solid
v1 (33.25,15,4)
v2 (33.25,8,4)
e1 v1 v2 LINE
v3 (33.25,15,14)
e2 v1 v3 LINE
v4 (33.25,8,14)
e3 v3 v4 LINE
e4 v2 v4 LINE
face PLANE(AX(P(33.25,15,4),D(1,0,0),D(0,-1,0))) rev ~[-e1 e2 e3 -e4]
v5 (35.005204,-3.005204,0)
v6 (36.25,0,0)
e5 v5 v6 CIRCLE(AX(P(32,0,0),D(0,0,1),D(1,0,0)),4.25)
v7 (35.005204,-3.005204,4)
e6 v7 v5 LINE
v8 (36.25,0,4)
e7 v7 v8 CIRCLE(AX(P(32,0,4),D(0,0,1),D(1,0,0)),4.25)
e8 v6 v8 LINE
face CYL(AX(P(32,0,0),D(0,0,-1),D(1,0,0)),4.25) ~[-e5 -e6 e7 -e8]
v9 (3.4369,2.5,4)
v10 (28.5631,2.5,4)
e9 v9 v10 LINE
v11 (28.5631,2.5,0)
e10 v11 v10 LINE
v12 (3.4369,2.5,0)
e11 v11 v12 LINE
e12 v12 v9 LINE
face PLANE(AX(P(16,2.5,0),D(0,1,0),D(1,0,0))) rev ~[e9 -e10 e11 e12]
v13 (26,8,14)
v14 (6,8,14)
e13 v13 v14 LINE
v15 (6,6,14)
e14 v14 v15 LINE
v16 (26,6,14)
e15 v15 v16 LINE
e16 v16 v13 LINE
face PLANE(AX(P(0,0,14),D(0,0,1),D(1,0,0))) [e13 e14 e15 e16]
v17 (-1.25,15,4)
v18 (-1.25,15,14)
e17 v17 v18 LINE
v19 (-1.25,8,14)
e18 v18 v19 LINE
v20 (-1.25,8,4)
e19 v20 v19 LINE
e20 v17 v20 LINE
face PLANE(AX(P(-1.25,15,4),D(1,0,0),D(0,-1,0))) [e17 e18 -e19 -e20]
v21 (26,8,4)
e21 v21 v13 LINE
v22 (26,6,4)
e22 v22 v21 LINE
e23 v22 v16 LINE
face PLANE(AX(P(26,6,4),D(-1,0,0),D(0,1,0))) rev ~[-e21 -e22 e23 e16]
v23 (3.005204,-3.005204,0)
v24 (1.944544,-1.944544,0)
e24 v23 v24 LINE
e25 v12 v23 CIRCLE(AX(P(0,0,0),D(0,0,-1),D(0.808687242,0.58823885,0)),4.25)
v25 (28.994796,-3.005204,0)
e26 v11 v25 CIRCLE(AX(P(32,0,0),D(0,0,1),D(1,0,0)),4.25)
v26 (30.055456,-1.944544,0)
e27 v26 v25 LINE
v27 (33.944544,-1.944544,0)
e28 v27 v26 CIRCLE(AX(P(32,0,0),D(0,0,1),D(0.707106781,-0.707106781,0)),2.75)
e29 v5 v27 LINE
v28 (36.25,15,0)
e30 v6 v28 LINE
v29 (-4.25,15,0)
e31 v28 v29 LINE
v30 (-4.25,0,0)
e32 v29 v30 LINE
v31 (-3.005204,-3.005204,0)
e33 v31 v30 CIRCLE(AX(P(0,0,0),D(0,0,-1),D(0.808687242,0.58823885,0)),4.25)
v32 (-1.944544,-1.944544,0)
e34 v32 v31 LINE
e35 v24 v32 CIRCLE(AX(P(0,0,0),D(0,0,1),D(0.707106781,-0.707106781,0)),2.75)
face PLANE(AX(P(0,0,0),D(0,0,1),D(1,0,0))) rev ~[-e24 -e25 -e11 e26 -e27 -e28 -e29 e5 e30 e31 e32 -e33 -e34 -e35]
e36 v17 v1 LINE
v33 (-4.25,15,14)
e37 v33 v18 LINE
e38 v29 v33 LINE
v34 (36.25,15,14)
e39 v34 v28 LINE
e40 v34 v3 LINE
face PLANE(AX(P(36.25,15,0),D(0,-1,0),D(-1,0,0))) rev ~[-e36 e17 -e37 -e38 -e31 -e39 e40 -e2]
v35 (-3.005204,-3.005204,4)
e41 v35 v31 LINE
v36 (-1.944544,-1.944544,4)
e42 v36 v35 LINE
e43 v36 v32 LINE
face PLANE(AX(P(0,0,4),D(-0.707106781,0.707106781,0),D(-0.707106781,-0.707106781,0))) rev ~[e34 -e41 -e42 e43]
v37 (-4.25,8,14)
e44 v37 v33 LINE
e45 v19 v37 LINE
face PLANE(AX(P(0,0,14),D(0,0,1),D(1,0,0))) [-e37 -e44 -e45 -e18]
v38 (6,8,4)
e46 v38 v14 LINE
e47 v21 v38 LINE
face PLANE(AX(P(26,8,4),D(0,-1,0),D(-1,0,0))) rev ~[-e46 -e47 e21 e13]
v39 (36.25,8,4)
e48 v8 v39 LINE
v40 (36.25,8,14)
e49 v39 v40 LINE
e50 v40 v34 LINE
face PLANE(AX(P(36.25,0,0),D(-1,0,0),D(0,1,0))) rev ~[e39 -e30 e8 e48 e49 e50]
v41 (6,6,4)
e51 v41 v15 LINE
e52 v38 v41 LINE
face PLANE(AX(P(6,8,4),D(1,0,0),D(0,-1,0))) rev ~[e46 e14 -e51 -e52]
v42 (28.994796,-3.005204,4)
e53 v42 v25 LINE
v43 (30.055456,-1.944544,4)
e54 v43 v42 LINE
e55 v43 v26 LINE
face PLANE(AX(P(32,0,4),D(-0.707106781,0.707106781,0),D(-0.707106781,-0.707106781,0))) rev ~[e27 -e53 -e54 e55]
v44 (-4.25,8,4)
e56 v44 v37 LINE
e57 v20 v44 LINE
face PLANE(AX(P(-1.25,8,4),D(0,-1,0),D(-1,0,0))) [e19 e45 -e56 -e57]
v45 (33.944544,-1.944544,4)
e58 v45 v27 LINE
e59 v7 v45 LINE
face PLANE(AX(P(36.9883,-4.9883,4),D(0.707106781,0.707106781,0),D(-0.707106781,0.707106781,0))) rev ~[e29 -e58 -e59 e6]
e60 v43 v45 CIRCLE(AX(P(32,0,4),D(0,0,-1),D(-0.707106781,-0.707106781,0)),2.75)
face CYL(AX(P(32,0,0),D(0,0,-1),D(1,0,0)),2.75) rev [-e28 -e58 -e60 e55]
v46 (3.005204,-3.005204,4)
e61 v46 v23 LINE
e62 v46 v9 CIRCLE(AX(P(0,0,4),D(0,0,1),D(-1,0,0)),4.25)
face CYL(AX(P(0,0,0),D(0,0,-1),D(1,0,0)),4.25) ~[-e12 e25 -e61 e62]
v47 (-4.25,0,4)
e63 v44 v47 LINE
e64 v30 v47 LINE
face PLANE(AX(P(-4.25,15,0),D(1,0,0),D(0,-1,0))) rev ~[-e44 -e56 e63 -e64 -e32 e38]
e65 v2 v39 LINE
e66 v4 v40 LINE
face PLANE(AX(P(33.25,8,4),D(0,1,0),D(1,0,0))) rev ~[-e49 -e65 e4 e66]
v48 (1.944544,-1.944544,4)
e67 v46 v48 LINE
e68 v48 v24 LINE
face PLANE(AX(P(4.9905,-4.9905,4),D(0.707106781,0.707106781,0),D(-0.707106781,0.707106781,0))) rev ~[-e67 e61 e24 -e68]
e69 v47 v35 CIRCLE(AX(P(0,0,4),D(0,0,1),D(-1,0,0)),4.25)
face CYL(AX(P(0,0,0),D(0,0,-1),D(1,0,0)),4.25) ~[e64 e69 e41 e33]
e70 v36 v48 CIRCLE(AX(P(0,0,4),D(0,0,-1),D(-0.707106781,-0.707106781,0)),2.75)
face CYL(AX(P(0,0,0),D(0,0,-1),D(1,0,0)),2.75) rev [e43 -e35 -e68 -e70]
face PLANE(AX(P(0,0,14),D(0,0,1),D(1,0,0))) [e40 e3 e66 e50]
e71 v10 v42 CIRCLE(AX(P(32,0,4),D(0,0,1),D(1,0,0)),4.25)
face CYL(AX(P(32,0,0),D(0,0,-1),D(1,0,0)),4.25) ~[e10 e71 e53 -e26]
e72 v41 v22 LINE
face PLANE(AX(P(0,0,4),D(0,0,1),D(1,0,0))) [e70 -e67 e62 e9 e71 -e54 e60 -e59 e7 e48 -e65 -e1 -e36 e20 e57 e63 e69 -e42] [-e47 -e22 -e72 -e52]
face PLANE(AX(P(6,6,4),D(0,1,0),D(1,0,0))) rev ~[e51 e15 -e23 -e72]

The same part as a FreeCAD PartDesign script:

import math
import FreeCAD as App
import Part
import Sketcher
Q = App.Units.Quantity


def add_polygon(sketch, points):
    """Adds a closed chain of lines whose ends are joined by coincident constraints."""
    first, n = sketch.GeometryCount, len(points)
    for a, b in zip(points, points[1:] + points[:1]):
        sketch.addGeometry(Part.LineSegment(App.Vector(*a, 0), App.Vector(*b, 0)), False)
    for i in range(n):
        sketch.addConstraint(Sketcher.Constraint("Coincident", first + i, 2, first + (i + 1) % n, 1))

doc = App.newDocument("Part")
body = doc.addObject("PartDesign::Body", "Body")

# Sketch on XY plane
sketch1 = body.newObject("Sketcher::SketchObject", "Sketch")
sketch1.AttachmentSupport = (doc.getObject("XY_Plane"), [""])
sketch1.MapMode = "FlatFace"
sketch1.addGeometry([
    Part.LineSegment(App.Vector(36.2, 15, 0), App.Vector(-4.2, 15, 0)),  # 0
    Part.LineSegment(App.Vector(-4.2, 15, 0), App.Vector(-4.2, 0, 0)),  # 1
    Part.ArcOfCircle(Part.Circle(App.Vector(0, 0, 0), App.Vector(0, 0, 1), 4.2), math.radians(180), math.radians(396)),  # 2
    Part.LineSegment(App.Vector(3.4, 2.5, 0), App.Vector(28.6, 2.5, 0)),  # 3
    Part.ArcOfCircle(Part.Circle(App.Vector(32, 0, 0), App.Vector(0, 0, 1), 4.2), math.radians(144), math.radians(360)),  # 4
    Part.LineSegment(App.Vector(36.2, 0, 0), App.Vector(36.2, 15, 0)),  # 5
    Part.Circle(App.Vector(32, 0, 0), App.Vector(0, 0, 1), 2.8),  # 6
    Part.Circle(App.Vector(0, 0, 0), App.Vector(0, 0, 1), 2.8),  # 7
], False)
sketch1.addConstraint([
    Sketcher.Constraint("Coincident", 0, 2, 1, 1),
    Sketcher.Constraint("Tangent", 1, 2, 2, 1),
    Sketcher.Constraint("Coincident", 2, 2, 3, 1),
    Sketcher.Constraint("Coincident", 3, 2, 4, 1),
    Sketcher.Constraint("Tangent", 4, 2, 5, 1),
    Sketcher.Constraint("Coincident", 5, 2, 0, 1),
    Sketcher.Constraint("Horizontal", 0),
    Sketcher.Constraint("Vertical", 1),
    Sketcher.Constraint("Horizontal", 3),
    Sketcher.Constraint("Vertical", 5),
    Sketcher.Constraint("Coincident", 2, 3, -1, 1),
    Sketcher.Constraint("Coincident", 7, 3, -1, 1),
    Sketcher.Constraint("Coincident", 6, 3, 4, 3),
    Sketcher.Constraint("Equal", 2, 4),
    Sketcher.Constraint("Equal", 6, 7),
    Sketcher.Constraint("PointOnObject", 4, 3, -1),
    Sketcher.Constraint("Diameter", 6, Q("5.5 mm")),
    Sketcher.Constraint("DistanceY", 1, 2, 1, 1, Q("15 mm")),
    Sketcher.Constraint("DistanceX", -1, 1, 4, 3, Q("32 mm")),
    Sketcher.Constraint("DistanceY", -1, 1, 2, 2, Q("2.5 mm")),
    Sketcher.Constraint("Radius", 2, Q("4.25 mm")),
])
pad1 = body.newObject("PartDesign::Pad", "Pad")
pad1.Profile = sketch1
pad1.Length = 4

# Sketch on XY plane
sketch2 = body.newObject("Sketcher::SketchObject", "Sketch001")
sketch2.AttachmentSupport = (doc.getObject("XY_Plane"), [""])
sketch2.MapMode = "FlatFace"
sketch2.AttachmentOffset = App.Placement(App.Vector(0, 0, 4), App.Rotation())
add_polygon(sketch2, [(5, -5), (0, 0), (-4, -4), (1, -9)])  # lines 0-3
add_polygon(sketch2, [(37, -5), (32, 0), (27, -5), (32, -10)])  # lines 4-7
sketch2.addConstraint([
    Sketcher.Constraint("Coincident", 0, 2, -1, 1),
    Sketcher.Constraint("PointOnObject", 4, 2, -1),
    Sketcher.Constraint("Perpendicular", 0, 1),
    Sketcher.Constraint("Perpendicular", 1, 2),
    Sketcher.Constraint("Perpendicular", 2, 3),
    Sketcher.Constraint("Perpendicular", 3, 4),
    Sketcher.Constraint("Perpendicular", 4, 5),
    Sketcher.Constraint("Perpendicular", 5, 6),
    Sketcher.Constraint("Perpendicular", 6, 7),
    Sketcher.Constraint("Angle", 2, Q("-44.9994 deg")),
    Sketcher.Constraint("DistanceX", -1, 1, 4, 2, Q("32 mm")),
    Sketcher.Constraint("DistanceX", -1, 1, 2, 2, Q("0.938 mm")),
    Sketcher.Constraint("DistanceY", 2, 2, -1, 1, Q("9.043 mm")),
    Sketcher.Constraint("DistanceX", -1, 1, 6, 2, Q("32.273 mm")),
    Sketcher.Constraint("DistanceX", 3, 2, 5, 2, Q("22.294 mm")),
])
pocket1 = body.newObject("PartDesign::Pocket", "Pocket")
pocket1.Profile = sketch2
pocket1.Type = "ThroughAll"

# Sketch on XY plane
sketch3 = body.newObject("Sketcher::SketchObject", "Sketch002")
sketch3.AttachmentSupport = (doc.getObject("XY_Plane"), [""])
sketch3.MapMode = "FlatFace"
sketch3.AttachmentOffset = App.Placement(App.Vector(0, 0, 4), App.Rotation())
add_polygon(sketch3, [(-1.2, 15), (-4.2, 15), (-4.2, 8), (-1.2, 8)])  # lines 0-3
add_polygon(sketch3, [(36.2, 8), (36.2, 15), (33.2, 15), (33.2, 8)])  # lines 4-7
add_polygon(sketch3, [(6, 8), (6, 6), (26, 6), (26, 8)])  # lines 8-11
sketch3.addConstraint([
    Sketcher.Constraint("Horizontal", 0),
    Sketcher.Constraint("Vertical", 1),
    Sketcher.Constraint("Horizontal", 2),
    Sketcher.Constraint("Vertical", 3),
    Sketcher.Constraint("Vertical", 4),
    Sketcher.Constraint("Horizontal", 5),
    Sketcher.Constraint("Vertical", 6),
    Sketcher.Constraint("Horizontal", 7),
    Sketcher.Constraint("Vertical", 8),
    Sketcher.Constraint("Horizontal", 9),
    Sketcher.Constraint("Vertical", 10),
    Sketcher.Constraint("Horizontal", 11),
    Sketcher.Constraint("Horizontal", 3, 2, 4, 2),
    Sketcher.Constraint("Horizontal", 2, 2, 6, 2),
    Sketcher.Constraint("Horizontal", 7, 2, 10, 2),
    Sketcher.Constraint("Equal", 2, 5),
    Sketcher.Constraint("DistanceX", 0, 2, 0, 1, Q("3 mm")),
    Sketcher.Constraint("DistanceX", 9, 1, 9, 2, Q("20 mm")),
    Sketcher.Constraint("DistanceY", 1, 2, 1, 1, Q("7 mm")),
    Sketcher.Constraint("DistanceY", 8, 2, 8, 1, Q("2 mm")),
    Sketcher.Constraint("DistanceY", -1, 1, 0, 2, Q("15 mm")),
    Sketcher.Constraint("DistanceX", -1, 1, 8, 2, Q("6 mm")),
    Sketcher.Constraint("DistanceX", 3, 2, 4, 2, Q("37.5 mm")),
    Sketcher.Constraint("DistanceX", 0, 2, -1, 1, Q("4.25 mm")),
])
pad2 = body.newObject("PartDesign::Pad", "Pad001")
pad2.Profile = sketch3
pad2.Length = 10

doc.recompute()
